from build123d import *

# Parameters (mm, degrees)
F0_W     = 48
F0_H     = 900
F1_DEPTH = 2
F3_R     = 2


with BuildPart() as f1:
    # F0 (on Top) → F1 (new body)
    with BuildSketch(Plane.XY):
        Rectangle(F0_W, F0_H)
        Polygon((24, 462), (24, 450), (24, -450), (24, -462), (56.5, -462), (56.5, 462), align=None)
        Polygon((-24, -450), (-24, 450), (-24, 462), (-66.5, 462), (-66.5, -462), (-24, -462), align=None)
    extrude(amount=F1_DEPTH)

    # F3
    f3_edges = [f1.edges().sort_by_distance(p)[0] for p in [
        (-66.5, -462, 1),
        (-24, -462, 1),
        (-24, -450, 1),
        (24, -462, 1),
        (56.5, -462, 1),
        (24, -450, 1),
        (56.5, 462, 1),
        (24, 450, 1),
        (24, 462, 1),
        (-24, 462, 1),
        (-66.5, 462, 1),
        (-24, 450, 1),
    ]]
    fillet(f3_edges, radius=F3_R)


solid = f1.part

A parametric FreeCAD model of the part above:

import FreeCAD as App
import Part
import Sketcher


def edges_at(feature, points):
    """Names of the edges that pass closest to the given points."""
    edges = feature.Shape.Edges
    near = lambda p: min(range(len(edges)), key=lambda i: edges[i].distToShape(Part.Vertex(*p))[0])
    return sorted({f"Edge{near(p) + 1}" for p in points})


def add_polygon(sketch, points):
    """Adds a closed chain of lines whose ends are joined by coincident constraints."""
    first, n = sketch.GeometryCount, len(points)
    for a, b in zip(points, points[1:] + points[:1]):
        sketch.addGeometry(Part.LineSegment(App.Vector(*a, 0), App.Vector(*b, 0)), False)
    for i in range(n):
        sketch.addConstraint(Sketcher.Constraint("Coincident", first + i, 2, first + (i + 1) % n, 1))

doc = App.newDocument("Part")
body = doc.addObject("PartDesign::Body", "Body")

# Sketch on XY plane
sketch1 = body.newObject("Sketcher::SketchObject", "Sketch")
sketch1.AttachmentSupport = (doc.getObject("XY_Plane"), [""])
sketch1.MapMode = "FlatFace"
add_polygon(sketch1, [(-24, -450), (24, -450), (24, -462), (56, -462), (56, 462), (24, 462), (24, 450), (-24, 450), (-24, 462), (-66, 462), (-66, -462), (-24, -462)])  # lines 0-11
sketch1.addConstraint(Sketcher.Constraint("Horizontal", 0))
sketch1.addConstraint(Sketcher.Constraint("Vertical", 1))
sketch1.addConstraint(Sketcher.Constraint("Horizontal", 2))
sketch1.addConstraint(Sketcher.Constraint("Vertical", 3))
sketch1.addConstraint(Sketcher.Constraint("Horizontal", 4))
sketch1.addConstraint(Sketcher.Constraint("Vertical", 5))
sketch1.addConstraint(Sketcher.Constraint("Horizontal", 6))
sketch1.addConstraint(Sketcher.Constraint("Vertical", 7))
sketch1.addConstraint(Sketcher.Constraint("Horizontal", 8))
sketch1.addConstraint(Sketcher.Constraint("Vertical", 9))
sketch1.addConstraint(Sketcher.Constraint("Horizontal", 10))
sketch1.addConstraint(Sketcher.Constraint("Vertical", 11))
sketch1.addConstraint(Sketcher.Constraint("Symmetric", 0, 2, 6, 2, -1, 1))
sketch1.addConstraint(Sketcher.Constraint("Symmetric", 4, 2, 10, 2, -1, 1))
sketch1.addConstraint(Sketcher.Constraint("Symmetric", 4, 2, 7, 2, -2))
sketch1.addConstraint(Sketcher.Constraint("Horizontal", 2, 2, 9, 2))
sketch1.addConstraint(Sketcher.Constraint("DistanceX", 0, 1, 0, 2, 48.0))
sketch1.addConstraint(Sketcher.Constraint("DistanceY", 1, 2, 1, 1, 12.0))
sketch1.addConstraint(Sketcher.Constraint("DistanceY", 3, 1, 3, 2, 924.0))
sketch1.addConstraint(Sketcher.Constraint("DistanceX", 2, 1, 2, 2, 32.5))
sketch1.addConstraint(Sketcher.Constraint("DistanceX", 8, 2, 8, 1, 42.5))
pad1 = body.newObject("PartDesign::Pad", "Pad")
pad1.Profile = sketch1
pad1.Length = 2
doc.recompute()

fillet = body.newObject("PartDesign::Fillet", "Fillet")
fillet.Base = (pad1, edges_at(pad1, [
    (-66.5, -462, 1),
    (-24, -462, 1),
    (-24, -450, 1),
    (24, -462, 1),
    (56.5, -462, 1),
    (24, -450, 1),
    (56.5, 462, 1),
    (24, 450, 1),
    (24, 462, 1),
    (-24, 462, 1),
    (-66.5, 462, 1),
    (-24, 450, 1),
]))
fillet.Radius = 2

doc.recompute()
